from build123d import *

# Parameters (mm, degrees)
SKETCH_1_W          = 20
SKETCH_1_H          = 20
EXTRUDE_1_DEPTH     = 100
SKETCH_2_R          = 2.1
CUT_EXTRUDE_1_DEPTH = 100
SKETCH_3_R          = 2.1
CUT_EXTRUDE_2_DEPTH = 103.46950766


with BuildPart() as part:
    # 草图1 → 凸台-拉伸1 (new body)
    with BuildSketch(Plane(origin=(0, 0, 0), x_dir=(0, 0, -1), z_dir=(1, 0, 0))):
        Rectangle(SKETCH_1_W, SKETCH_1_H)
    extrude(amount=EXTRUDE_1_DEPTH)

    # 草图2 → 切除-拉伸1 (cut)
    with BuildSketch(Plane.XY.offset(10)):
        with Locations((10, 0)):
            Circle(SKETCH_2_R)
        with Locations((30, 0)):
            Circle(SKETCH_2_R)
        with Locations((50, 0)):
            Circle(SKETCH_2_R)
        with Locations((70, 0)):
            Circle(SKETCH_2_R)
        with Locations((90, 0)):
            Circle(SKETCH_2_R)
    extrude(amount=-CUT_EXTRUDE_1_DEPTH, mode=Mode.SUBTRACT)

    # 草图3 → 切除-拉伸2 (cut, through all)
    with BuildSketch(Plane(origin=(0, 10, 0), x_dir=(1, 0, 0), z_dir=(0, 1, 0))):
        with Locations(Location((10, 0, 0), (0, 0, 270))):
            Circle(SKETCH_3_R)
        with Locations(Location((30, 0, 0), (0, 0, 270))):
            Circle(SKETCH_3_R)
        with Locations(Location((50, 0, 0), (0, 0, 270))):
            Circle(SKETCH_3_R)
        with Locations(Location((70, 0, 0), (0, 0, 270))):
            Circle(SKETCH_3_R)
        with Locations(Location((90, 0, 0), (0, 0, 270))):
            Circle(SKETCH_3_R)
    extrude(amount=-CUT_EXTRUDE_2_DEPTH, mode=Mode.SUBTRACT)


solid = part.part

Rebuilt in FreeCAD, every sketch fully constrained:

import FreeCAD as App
import Part
import Sketcher

V = App.Vector
Q = App.Units.Quantity


def add_polygon(sketch, points):
    """Adds a closed chain of lines whose ends are joined by coincident constraints."""
    first, n = sketch.GeometryCount, len(points)
    for a, b in zip(points, points[1:] + points[:1]):
        sketch.addGeometry(Part.LineSegment(App.Vector(*a, 0), App.Vector(*b, 0)), False)
    for i in range(n):
        sketch.addConstraint(Sketcher.Constraint("Coincident", first + i, 2, first + (i + 1) % n, 1))

doc = App.newDocument("Part")
body = doc.addObject("PartDesign::Body", "Body")

# Sketch on YZ plane
sketch1 = body.newObject("Sketcher::SketchObject", "Sketch")
sketch1.AttachmentSupport = (doc.getObject("YZ_Plane"), [""])
sketch1.MapMode = "FlatFace"
add_polygon(sketch1, [(10, 10), (-10, 10), (-10, -10), (10, -10)])  # lines 0-3
sketch1.addConstraint([
    Sketcher.Constraint("Horizontal", 0),
    Sketcher.Constraint("Vertical", 1),
    Sketcher.Constraint("Horizontal", 2),
    Sketcher.Constraint("Vertical", 3),
    Sketcher.Constraint("Symmetric", 0, 2, 2, 2, -1, 1),
    Sketcher.Constraint("Equal", 2, 1),
    Sketcher.Constraint("DistanceX", 0, 2, 0, 1, Q("20 mm")),
])
pad1 = body.newObject("PartDesign::Pad", "Pad")
pad1.Profile = sketch1
pad1.Length = 100

# Sketch on XY plane
sketch2 = body.newObject("Sketcher::SketchObject", "Sketch001")
sketch2.AttachmentSupport = (doc.getObject("XY_Plane"), [""])
sketch2.MapMode = "FlatFace"
sketch2.AttachmentOffset = App.Placement(V(0, 0, 10), App.Rotation())
sketch2.addGeometry([
    Part.Circle(V(10, 0, 0), V(0, 0, 1), 2.1),  # 0
    Part.Circle(V(30, 0, 0), V(0, 0, 1), 2.1),  # 1
    Part.Circle(V(50, 0, 0), V(0, 0, 1), 2.1),  # 2
    Part.Circle(V(70, 0, 0), V(0, 0, 1), 2.1),  # 3
    Part.Circle(V(90, 0, 0), V(0, 0, 1), 2.1),  # 4
], False)
sketch2.addConstraint([
    Sketcher.Constraint("Equal", 0, 1),
    Sketcher.Constraint("Equal", 1, 2),
    Sketcher.Constraint("Equal", 2, 3),
    Sketcher.Constraint("Equal", 3, 4),
    Sketcher.Constraint("PointOnObject", 0, 3, -1),
    Sketcher.Constraint("PointOnObject", 1, 3, -1),
    Sketcher.Constraint("PointOnObject", 2, 3, -1),
    Sketcher.Constraint("PointOnObject", 3, 3, -1),
    Sketcher.Constraint("PointOnObject", 4, 3, -1),
    Sketcher.Constraint("Diameter", 0, Q("4.2 mm")),
    Sketcher.Constraint("DistanceX", -1, 1, 0, 3, Q("10 mm")),
    Sketcher.Constraint("DistanceX", -1, 1, 1, 3, Q("30 mm")),
    Sketcher.Constraint("DistanceX", -1, 1, 2, 3, Q("50 mm")),
    Sketcher.Constraint("DistanceX", -1, 1, 3, 3, Q("70 mm")),
    Sketcher.Constraint("DistanceX", -1, 1, 4, 3, Q("90 mm")),
])
pocket1 = body.newObject("PartDesign::Pocket", "Pocket")
pocket1.Profile = sketch2
pocket1.Length = 100

# Sketch on XZ plane
sketch3 = body.newObject("Sketcher::SketchObject", "Sketch002")
sketch3.AttachmentSupport = (doc.getObject("XZ_Plane"), [""])
sketch3.MapMode = "FlatFace"
sketch3.AttachmentOffset = App.Placement(V(0, 0, -10), App.Rotation())
sketch3.addGeometry([
    Part.Circle(V(10, 0, 0), V(0, 0, 1), 2.1),  # 0
    Part.Circle(V(30, 0, 0), V(0, 0, 1), 2.1),  # 1
    Part.Circle(V(50, 0, 0), V(0, 0, 1), 2.1),  # 2
    Part.Circle(V(70, 0, 0), V(0, 0, 1), 2.1),  # 3
    Part.Circle(V(90, 0, 0), V(0, 0, 1), 2.1),  # 4
], False)
sketch3.addConstraint([
    Sketcher.Constraint("Equal", 0, 1),
    Sketcher.Constraint("Equal", 1, 2),
    Sketcher.Constraint("Equal", 2, 3),
    Sketcher.Constraint("Equal", 3, 4),
    Sketcher.Constraint("PointOnObject", 0, 3, -1),
    Sketcher.Constraint("PointOnObject", 1, 3, -1),
    Sketcher.Constraint("PointOnObject", 2, 3, -1),
    Sketcher.Constraint("PointOnObject", 3, 3, -1),
    Sketcher.Constraint("PointOnObject", 4, 3, -1),
    Sketcher.Constraint("Diameter", 0, Q("4.2 mm")),
    Sketcher.Constraint("DistanceX", -1, 1, 0, 3, Q("10 mm")),
    Sketcher.Constraint("DistanceX", -1, 1, 1, 3, Q("30 mm")),
    Sketcher.Constraint("DistanceX", -1, 1, 2, 3, Q("50 mm")),
    Sketcher.Constraint("DistanceX", -1, 1, 3, 3, Q("70 mm")),
    Sketcher.Constraint("DistanceX", -1, 1, 4, 3, Q("90 mm")),
])
pocket2 = body.newObject("PartDesign::Pocket", "Pocket001")
pocket2.Profile = sketch3
pocket2.Type = "ThroughAll"
pocket2.Reversed = True

doc.recompute()
